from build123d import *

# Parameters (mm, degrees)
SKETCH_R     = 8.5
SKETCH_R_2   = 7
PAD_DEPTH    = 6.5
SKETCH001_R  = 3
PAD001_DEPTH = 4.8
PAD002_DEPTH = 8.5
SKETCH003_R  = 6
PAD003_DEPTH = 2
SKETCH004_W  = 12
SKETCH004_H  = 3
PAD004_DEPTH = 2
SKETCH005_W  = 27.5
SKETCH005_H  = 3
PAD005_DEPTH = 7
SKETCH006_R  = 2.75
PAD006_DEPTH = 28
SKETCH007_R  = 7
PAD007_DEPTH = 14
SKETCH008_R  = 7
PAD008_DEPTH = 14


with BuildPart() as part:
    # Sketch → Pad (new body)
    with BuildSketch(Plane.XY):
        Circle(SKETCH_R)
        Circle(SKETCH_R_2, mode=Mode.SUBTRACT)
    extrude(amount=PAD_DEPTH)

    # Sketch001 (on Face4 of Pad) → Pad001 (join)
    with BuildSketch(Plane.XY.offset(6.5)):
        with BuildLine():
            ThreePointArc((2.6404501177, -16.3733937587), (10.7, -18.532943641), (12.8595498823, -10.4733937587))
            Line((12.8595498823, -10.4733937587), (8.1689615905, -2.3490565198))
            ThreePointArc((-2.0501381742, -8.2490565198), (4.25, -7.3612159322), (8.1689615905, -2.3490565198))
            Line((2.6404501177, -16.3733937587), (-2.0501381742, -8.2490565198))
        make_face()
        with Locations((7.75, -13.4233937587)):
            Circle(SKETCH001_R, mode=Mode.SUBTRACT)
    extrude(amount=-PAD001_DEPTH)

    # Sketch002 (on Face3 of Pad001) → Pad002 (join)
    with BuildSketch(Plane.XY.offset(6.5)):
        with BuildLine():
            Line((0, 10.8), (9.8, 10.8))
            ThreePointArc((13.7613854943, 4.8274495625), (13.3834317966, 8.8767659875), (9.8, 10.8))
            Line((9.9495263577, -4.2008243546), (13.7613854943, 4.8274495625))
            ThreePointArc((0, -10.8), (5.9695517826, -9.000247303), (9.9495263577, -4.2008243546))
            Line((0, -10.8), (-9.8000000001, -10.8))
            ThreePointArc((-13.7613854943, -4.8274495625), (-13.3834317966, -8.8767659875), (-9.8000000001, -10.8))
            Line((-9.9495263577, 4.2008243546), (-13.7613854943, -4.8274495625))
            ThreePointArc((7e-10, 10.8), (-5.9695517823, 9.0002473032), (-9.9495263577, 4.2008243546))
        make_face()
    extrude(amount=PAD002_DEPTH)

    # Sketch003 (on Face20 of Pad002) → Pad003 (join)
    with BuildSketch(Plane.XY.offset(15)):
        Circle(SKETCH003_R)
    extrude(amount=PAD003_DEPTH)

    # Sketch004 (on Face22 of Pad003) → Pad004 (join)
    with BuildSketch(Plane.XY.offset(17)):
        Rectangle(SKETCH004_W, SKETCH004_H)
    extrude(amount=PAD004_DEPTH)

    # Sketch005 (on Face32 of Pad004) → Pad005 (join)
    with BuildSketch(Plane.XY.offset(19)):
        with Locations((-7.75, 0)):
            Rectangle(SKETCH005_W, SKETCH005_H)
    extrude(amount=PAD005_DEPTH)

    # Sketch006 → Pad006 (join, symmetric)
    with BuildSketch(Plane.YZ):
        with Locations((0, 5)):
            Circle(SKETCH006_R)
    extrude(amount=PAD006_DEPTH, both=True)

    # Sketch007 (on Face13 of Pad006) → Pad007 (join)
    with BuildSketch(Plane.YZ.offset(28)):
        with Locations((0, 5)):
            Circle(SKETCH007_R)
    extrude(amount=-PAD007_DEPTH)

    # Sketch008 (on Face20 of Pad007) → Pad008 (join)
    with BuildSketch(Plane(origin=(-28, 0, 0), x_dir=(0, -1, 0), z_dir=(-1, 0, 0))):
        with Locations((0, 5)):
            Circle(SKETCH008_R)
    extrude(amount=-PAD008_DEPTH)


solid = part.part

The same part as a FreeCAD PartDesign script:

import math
import FreeCAD as App
import Part
import Sketcher

V = App.Vector
Q = App.Units.Quantity


def add_polygon(sketch, points):
    """Adds a closed chain of lines whose ends are joined by coincident constraints."""
    first, n = sketch.GeometryCount, len(points)
    for a, b in zip(points, points[1:] + points[:1]):
        sketch.addGeometry(Part.LineSegment(App.Vector(*a, 0), App.Vector(*b, 0)), False)
    for i in range(n):
        sketch.addConstraint(Sketcher.Constraint("Coincident", first + i, 2, first + (i + 1) % n, 1))

doc = App.newDocument("Part")
params = doc.addObject("Spreadsheet::Sheet", "Params")
for row, (alias, value) in enumerate([
    ("sketch1_diameter", "17 mm"),
    ("sketch1_diameter2", "14 mm"),
    ("pad1_length", "6.5 mm"),
    ("sketch2_diameter", "6 mm"),
    ("sketch2_radius", "5.9 mm"),
    ("sketch2_radius2", "8.5 mm"),
    ("pad2_length", "4.8 mm"),
    ("sketch3_radius", "10.8 mm"),
    ("sketch3_radius2", "4.3 mm"),
    ("sketch3_width", "9.8 mm"),
    ("pad3_length", "8.5 mm"),
    ("sketch4_diameter", "12 mm"),
    ("pad4_length", "2 mm"),
    ("sketch5_width", "12 mm"),
    ("sketch5_height", "3 mm"),
    ("pad5_length", "2 mm"),
    ("sketch6_height", "3 mm"),
    ("sketch6_width", "27.5 mm"),
    ("pad6_length", "7 mm"),
    ("sketch7_diameter", "5.5 mm"),
    ("pad7_length", "56 mm"),
    ("sketch8_diameter", "14 mm"),
    ("pad8_length", "14 mm"),
    ("sketch9_diameter", "14 mm"),
    ("pad9_length", "14 mm"),
], start=1):
    params.set(f"A{row}", alias)
    params.set(f"B{row}", "=" + value)
    params.setAlias(f"B{row}", alias)

body = doc.addObject("PartDesign::Body", "Body")

# Sketch on XY plane
sketch1 = body.newObject("Sketcher::SketchObject", "Sketch")
sketch1.AttachmentSupport = (doc.getObject("XY_Plane"), [""])
sketch1.MapMode = "FlatFace"
sketch1.addGeometry([
    Part.Circle(V(0, 0, 0), V(0, 0, 1), 8),
    Part.Circle(V(0, 0, 0), V(0, 0, 1), 7),
], False)
sketch1.addConstraint([
    Sketcher.Constraint("Coincident", 0, 3, -1, 1),
    Sketcher.Constraint("Coincident", 1, 3, -1, 1),
    Sketcher.Constraint("Diameter", 0, Q("17 mm")),
    Sketcher.Constraint("Diameter", 1, Q("14 mm")),
])
sketch1.setExpression("Constraints[2]", "Params.sketch1_diameter")
sketch1.setExpression("Constraints[3]", "Params.sketch1_diameter2")
pad1 = body.newObject("PartDesign::Pad", "Pad")
pad1.Profile = sketch1
pad1.setExpression("Length", "Params.pad1_length")

# Sketch on XY plane
sketch2 = body.newObject("Sketcher::SketchObject", "Sketch001")
sketch2.AttachmentSupport = (doc.getObject("XY_Plane"), [""])
sketch2.MapMode = "FlatFace"
sketch2.AttachmentOffset = App.Placement(V(0, 0, 6.5), App.Rotation())
sketch2.addGeometry([
    Part.ArcOfCircle(Part.Circle(V(7.8, -13.4, 0), V(0, 0, 1), 5.9), math.radians(-150), math.radians(30)),  # 0
    Part.LineSegment(V(12.9, -10.5, 0), V(8.2, -2.3, 0)),  # 1
    Part.ArcOfCircle(Part.Circle(V(0, 0, 0), V(0, 0, 1), 8.5), math.radians(-104), math.radians(-16)),  # 2
    Part.LineSegment(V(-2.1, -8.2, 0), V(2.6, -16.4, 0)),  # 3
    Part.Circle(V(7.8, -13.4, 0), V(0, 0, 1), 3),  # 4
], False)
sketch2.addConstraint([
    Sketcher.Constraint("Tangent", 0, 2, 1, 1),
    Sketcher.Constraint("Coincident", 1, 2, 2, 2),
    Sketcher.Constraint("Coincident", 2, 1, 3, 1),
    Sketcher.Constraint("Tangent", 3, 2, 0, 1),
    Sketcher.Constraint("Coincident", 2, 3, -1, 1),
    Sketcher.Constraint("Coincident", 4, 3, 0, 3),
    Sketcher.Constraint("Parallel", 1, 3),
    Sketcher.Constraint("Equal", 1, 3),
    Sketcher.Constraint("Diameter", 4, Q("6 mm")),
    Sketcher.Constraint("Radius", 0, Q("5.9 mm")),
    Sketcher.Constraint("Radius", 2, Q("8.5 mm")),
    Sketcher.Constraint("Angle", 1, Q("120 deg")),
    Sketcher.Constraint("DistanceX", -1, 1, 0, 3, Q("7.75 mm")),
])
sketch2.setExpression("Constraints[8]", "Params.sketch2_diameter")
sketch2.setExpression("Constraints[9]", "Params.sketch2_radius")
sketch2.setExpression("Constraints[10]", "Params.sketch2_radius2")
pad2 = body.newObject("PartDesign::Pad", "Pad001")
pad2.Profile = sketch2
pad2.setExpression("Length", "Params.pad2_length")
pad2.Reversed = True

# Sketch on XY plane
sketch3 = body.newObject("Sketcher::SketchObject", "Sketch002")
sketch3.AttachmentSupport = (doc.getObject("XY_Plane"), [""])
sketch3.MapMode = "FlatFace"
sketch3.AttachmentOffset = App.Placement(V(0, 0, 6.5), App.Rotation())
sketch3.addGeometry([
    Part.LineSegment(V(9.8, 10.8, 0), V(0, 10.8, 0)),  # 0
    Part.ArcOfCircle(Part.Circle(V(0, 0, 0), V(0, 0, 1), 10.8), math.radians(90), math.radians(157)),  # 1
    Part.LineSegment(V(-9.9, 4.2, 0), V(-13.8, -4.8, 0)),  # 2
    Part.ArcOfCircle(Part.Circle(V(-9.8, -6.5, 0), V(0, 0, 1), 4.3), math.radians(157), math.radians(270)),  # 3
    Part.LineSegment(V(-9.8, -10.8, 0), V(0, -10.8, 0)),  # 4
    Part.ArcOfCircle(Part.Circle(V(0, 0, 0), V(0, 0, 1), 10.8), math.radians(-90), math.radians(-23)),  # 5
    Part.LineSegment(V(9.9, -4.2, 0), V(13.8, 4.8, 0)),  # 6
    Part.ArcOfCircle(Part.Circle(V(9.8, 6.5, 0), V(0, 0, 1), 4.3), math.radians(-23), math.radians(90)),  # 7
], False)
sketch3.addConstraint([
    Sketcher.Constraint("Tangent", 0, 2, 1, 1),
    Sketcher.Constraint("Tangent", 1, 2, 2, 1),
    Sketcher.Constraint("Tangent", 2, 2, 3, 1),
    Sketcher.Constraint("Tangent", 3, 2, 4, 1),
    Sketcher.Constraint("Tangent", 4, 2, 5, 1),
    Sketcher.Constraint("Tangent", 5, 2, 6, 1),
    Sketcher.Constraint("Tangent", 6, 2, 7, 1),
    Sketcher.Constraint("Tangent", 7, 2, 0, 1),
    Sketcher.Constraint("Horizontal", 0),
    Sketcher.Constraint("Horizontal", 4),
    Sketcher.Constraint("Coincident", 1, 3, -1, 1),
    Sketcher.Constraint("Coincident", 5, 3, -1, 1),
    Sketcher.Constraint("Equal", 1, 5),
    Sketcher.Constraint("Equal", 3, 7),
    Sketcher.Constraint("Parallel", 2, 6),
    Sketcher.Constraint("Radius", 1, Q("10.8 mm")),
    Sketcher.Constraint("Radius", 3, Q("4.3 mm")),
    Sketcher.Constraint("DistanceX", 0, 2, 0, 1, Q("9.8 mm")),
])
sketch3.setExpression("Constraints[15]", "Params.sketch3_radius")
sketch3.setExpression("Constraints[16]", "Params.sketch3_radius2")
sketch3.setExpression("Constraints[17]", "Params.sketch3_width")
pad3 = body.newObject("PartDesign::Pad", "Pad002")
pad3.Profile = sketch3
pad3.setExpression("Length", "Params.pad3_length")

# Sketch on XY plane
sketch4 = body.newObject("Sketcher::SketchObject", "Sketch003")
sketch4.AttachmentSupport = (doc.getObject("XY_Plane"), [""])
sketch4.MapMode = "FlatFace"
sketch4.AttachmentOffset = App.Placement(V(0, 0, 15), App.Rotation())
sketch4.addGeometry(Part.Circle(V(0, 0, 0), V(0, 0, 1), 6), False)
sketch4.addConstraint([
    Sketcher.Constraint("Coincident", 0, 3, -1, 1),
    Sketcher.Constraint("Diameter", 0, Q("12 mm")),
])
sketch4.setExpression("Constraints[1]", "Params.sketch4_diameter")
pad4 = body.newObject("PartDesign::Pad", "Pad003")
pad4.Profile = sketch4
pad4.setExpression("Length", "Params.pad4_length")

# Sketch on XY plane
sketch5 = body.newObject("Sketcher::SketchObject", "Sketch004")
sketch5.AttachmentSupport = (doc.getObject("XY_Plane"), [""])
sketch5.MapMode = "FlatFace"
sketch5.AttachmentOffset = App.Placement(V(0, 0, 17), App.Rotation())
add_polygon(sketch5, [(-6, 1.5), (-6, -1.5), (6, -1.5), (6, 1.5)])  # lines 0-3
sketch5.addConstraint([
    Sketcher.Constraint("Vertical", 0),
    Sketcher.Constraint("Horizontal", 1),
    Sketcher.Constraint("Vertical", 2),
    Sketcher.Constraint("Horizontal", 3),
    Sketcher.Constraint("Symmetric", 0, 2, 2, 2, -1, 1),
    Sketcher.Constraint("DistanceX", 1, 1, 1, 2, Q("12 mm")),
    Sketcher.Constraint("DistanceY", 0, 2, 0, 1, Q("3 mm")),
])
sketch5.setExpression("Constraints[9]", "Params.sketch5_width")
sketch5.setExpression("Constraints[10]", "Params.sketch5_height")
pad5 = body.newObject("PartDesign::Pad", "Pad004")
pad5.Profile = sketch5
pad5.setExpression("Length", "Params.pad5_length")

# Sketch on XY plane
sketch6 = body.newObject("Sketcher::SketchObject", "Sketch005")
sketch6.AttachmentSupport = (doc.getObject("XY_Plane"), [""])
sketch6.MapMode = "FlatFace"
sketch6.AttachmentOffset = App.Placement(V(0, 0, 19), App.Rotation())
add_polygon(sketch6, [(-21.5, 1.5), (-21.5, -1.5), (6, -1.5), (6, 1.5)])  # lines 0-3
sketch6.addConstraint([
    Sketcher.Constraint("Vertical", 0),
    Sketcher.Constraint("Horizontal", 1),
    Sketcher.Constraint("Vertical", 2),
    Sketcher.Constraint("Horizontal", 3),
    Sketcher.Constraint("DistanceY", 0, 2, 0, 1, Q("3 mm")),
    Sketcher.Constraint("DistanceX", 1, 1, 1, 2, Q("27.5 mm")),
    Sketcher.Constraint("DistanceX", -1, 1, 1, 2, Q("6 mm")),
    Sketcher.Constraint("DistanceY", 0, 2, -1, 1, Q("1.5 mm")),
])
sketch6.setExpression("Constraints[8]", "Params.sketch6_height")
sketch6.setExpression("Constraints[9]", "Params.sketch6_width")
pad6 = body.newObject("PartDesign::Pad", "Pad005")
pad6.Profile = sketch6
pad6.setExpression("Length", "Params.pad6_length")

# Sketch on YZ plane
sketch7 = body.newObject("Sketcher::SketchObject", "Sketch006")
sketch7.AttachmentSupport = (doc.getObject("YZ_Plane"), [""])
sketch7.MapMode = "FlatFace"
sketch7.addGeometry(Part.Circle(V(0, 5, 0), V(0, 0, 1), 2.8), False)
sketch7.addConstraint([
    Sketcher.Constraint("PointOnObject", 0, 3, -2),
    Sketcher.Constraint("Diameter", 0, Q("5.5 mm")),
    Sketcher.Constraint("DistanceY", -1, 1, 0, 3, Q("5 mm")),
])
sketch7.setExpression("Constraints[1]", "Params.sketch7_diameter")
pad7 = body.newObject("PartDesign::Pad", "Pad006")
pad7.Profile = sketch7
pad7.setExpression("Length", "Params.pad7_length")
pad7.Midplane = True

# Sketch on YZ plane
sketch8 = body.newObject("Sketcher::SketchObject", "Sketch007")
sketch8.AttachmentSupport = (doc.getObject("YZ_Plane"), [""])
sketch8.MapMode = "FlatFace"
sketch8.AttachmentOffset = App.Placement(V(0, 0, 28), App.Rotation())
sketch8.addGeometry(Part.Circle(V(0, 5, 0), V(0, 0, 1), 7), False)
sketch8.addConstraint([
    Sketcher.Constraint("PointOnObject", 0, 3, -2),
    Sketcher.Constraint("Diameter", 0, Q("14 mm")),
    Sketcher.Constraint("DistanceY", -1, 1, 0, 3, Q("5 mm")),
])
sketch8.setExpression("Constraints[1]", "Params.sketch8_diameter")
pad8 = body.newObject("PartDesign::Pad", "Pad007")
pad8.Profile = sketch8
pad8.setExpression("Length", "Params.pad8_length")
pad8.Reversed = True

# Sketch on YZ plane
sketch9 = body.newObject("Sketcher::SketchObject", "Sketch008")
sketch9.AttachmentSupport = (doc.getObject("YZ_Plane"), [""])
sketch9.MapMode = "FlatFace"
sketch9.AttachmentOffset = App.Placement(V(0, 0, -28), App.Rotation())
sketch9.addGeometry(Part.Circle(V(0, 5, 0), V(0, 0, 1), 7), False)
sketch9.addConstraint([
    Sketcher.Constraint("PointOnObject", 0, 3, -2),
    Sketcher.Constraint("Diameter", 0, Q("14 mm")),
    Sketcher.Constraint("DistanceY", -1, 1, 0, 3, Q("5 mm")),
])
sketch9.setExpression("Constraints[1]", "Params.sketch9_diameter")
pad9 = body.newObject("PartDesign::Pad", "Pad008")
pad9.Profile = sketch9
pad9.setExpression("Length", "Params.pad9_length")

doc.recompute()
